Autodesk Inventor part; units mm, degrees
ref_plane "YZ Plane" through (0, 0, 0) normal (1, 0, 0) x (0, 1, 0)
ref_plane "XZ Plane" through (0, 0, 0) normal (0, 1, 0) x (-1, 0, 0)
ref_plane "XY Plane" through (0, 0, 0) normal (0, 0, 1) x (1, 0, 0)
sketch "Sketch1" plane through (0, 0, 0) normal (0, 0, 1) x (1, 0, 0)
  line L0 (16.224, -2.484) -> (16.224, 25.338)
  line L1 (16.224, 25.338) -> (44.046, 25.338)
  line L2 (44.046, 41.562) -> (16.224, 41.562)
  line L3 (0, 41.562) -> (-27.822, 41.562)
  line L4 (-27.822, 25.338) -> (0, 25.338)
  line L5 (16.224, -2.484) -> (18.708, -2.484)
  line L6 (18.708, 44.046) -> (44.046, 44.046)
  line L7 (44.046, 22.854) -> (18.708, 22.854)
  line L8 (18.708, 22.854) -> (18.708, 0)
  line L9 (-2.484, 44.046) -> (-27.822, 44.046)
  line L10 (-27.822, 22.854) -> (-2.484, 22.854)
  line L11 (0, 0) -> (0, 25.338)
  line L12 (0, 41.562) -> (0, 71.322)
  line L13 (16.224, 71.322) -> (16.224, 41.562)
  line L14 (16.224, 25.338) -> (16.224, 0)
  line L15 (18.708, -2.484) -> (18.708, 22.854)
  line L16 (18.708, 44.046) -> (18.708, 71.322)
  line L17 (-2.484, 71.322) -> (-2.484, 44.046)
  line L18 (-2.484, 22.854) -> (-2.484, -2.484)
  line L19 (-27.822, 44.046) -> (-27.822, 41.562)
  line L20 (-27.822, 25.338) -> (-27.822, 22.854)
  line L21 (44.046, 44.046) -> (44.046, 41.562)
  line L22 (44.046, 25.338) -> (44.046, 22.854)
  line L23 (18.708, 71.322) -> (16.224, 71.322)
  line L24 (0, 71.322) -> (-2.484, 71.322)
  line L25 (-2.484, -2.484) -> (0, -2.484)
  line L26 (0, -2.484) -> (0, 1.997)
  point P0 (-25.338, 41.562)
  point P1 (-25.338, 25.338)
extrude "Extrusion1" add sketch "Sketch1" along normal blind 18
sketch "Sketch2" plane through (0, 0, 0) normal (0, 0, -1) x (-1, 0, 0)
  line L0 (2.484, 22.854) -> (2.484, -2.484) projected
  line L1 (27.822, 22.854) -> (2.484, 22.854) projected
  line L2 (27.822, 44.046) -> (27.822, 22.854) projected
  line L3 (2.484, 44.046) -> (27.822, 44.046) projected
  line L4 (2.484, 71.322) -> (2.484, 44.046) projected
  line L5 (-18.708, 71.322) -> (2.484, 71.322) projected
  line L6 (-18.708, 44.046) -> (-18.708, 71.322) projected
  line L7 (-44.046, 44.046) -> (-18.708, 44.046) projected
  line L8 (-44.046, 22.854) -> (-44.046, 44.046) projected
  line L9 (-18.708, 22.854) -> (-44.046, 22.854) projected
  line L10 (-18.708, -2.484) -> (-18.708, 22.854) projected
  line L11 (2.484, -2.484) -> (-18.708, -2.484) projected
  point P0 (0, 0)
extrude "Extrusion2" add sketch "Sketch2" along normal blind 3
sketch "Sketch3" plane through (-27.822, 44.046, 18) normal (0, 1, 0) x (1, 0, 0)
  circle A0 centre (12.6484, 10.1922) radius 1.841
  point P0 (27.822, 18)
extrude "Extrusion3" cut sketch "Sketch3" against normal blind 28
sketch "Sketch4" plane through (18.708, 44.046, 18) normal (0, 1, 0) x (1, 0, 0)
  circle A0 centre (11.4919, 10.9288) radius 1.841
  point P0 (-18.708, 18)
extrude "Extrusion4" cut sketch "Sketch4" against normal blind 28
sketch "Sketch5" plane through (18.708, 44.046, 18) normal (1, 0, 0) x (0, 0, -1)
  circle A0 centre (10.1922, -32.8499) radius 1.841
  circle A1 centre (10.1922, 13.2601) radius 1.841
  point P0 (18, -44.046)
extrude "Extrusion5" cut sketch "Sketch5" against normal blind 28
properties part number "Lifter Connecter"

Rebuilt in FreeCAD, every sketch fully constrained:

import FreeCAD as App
import Part
import Sketcher
from FreeCAD import Vector
Q = App.Units.Quantity

doc = App.newDocument("Part")
body = doc.addObject("PartDesign::Body", "Body")
body.AllowCompound = True

# Sketch on XY plane
sketch1 = body.newObject("Sketcher::SketchObject", "Sketch")
sketch1.AttachmentSupport = (doc.getObject("XY_Plane"), [""])
sketch1.MapMode = "FlatFace"
sketch1.addGeometry(Part.LineSegment(Vector(16.2, 25.3, 0), Vector(16.2, -2.5, 0)), False)
sketch1.addGeometry(Part.LineSegment(Vector(16.2, -2.5, 0), Vector(18.7, -2.5, 0)), False)
sketch1.addGeometry(Part.LineSegment(Vector(18.7, -2.5, 0), Vector(18.7, 22.9, 0)), False)
sketch1.addGeometry(Part.LineSegment(Vector(18.7, 22.9, 0), Vector(44, 22.9, 0)), False)
sketch1.addGeometry(Part.LineSegment(Vector(44, 22.9, 0), Vector(44, 25.3, 0)), False)
sketch1.addGeometry(Part.LineSegment(Vector(44, 25.3, 0), Vector(16.2, 25.3, 0)), False)
sketch1.addGeometry(Part.LineSegment(Vector(16.2, 41.6, 0), Vector(44, 41.6, 0)), False)
sketch1.addGeometry(Part.LineSegment(Vector(44, 41.6, 0), Vector(44, 44, 0)), False)
sketch1.addGeometry(Part.LineSegment(Vector(44, 44, 0), Vector(18.7, 44, 0)), False)
sketch1.addGeometry(Part.LineSegment(Vector(18.7, 44, 0), Vector(18.7, 71.3, 0)), False)
sketch1.addGeometry(Part.LineSegment(Vector(18.7, 71.3, 0), Vector(16.2, 71.3, 0)), False)
sketch1.addGeometry(Part.LineSegment(Vector(16.2, 71.3, 0), Vector(16.2, 41.6, 0)), False)
sketch1.addGeometry(Part.LineSegment(Vector(-27.8, 41.6, 0), Vector(0, 41.6, 0)), False)
sketch1.addGeometry(Part.LineSegment(Vector(0, 41.6, 0), Vector(0, 71.3, 0)), False)
sketch1.addGeometry(Part.LineSegment(Vector(0, 71.3, 0), Vector(-2.5, 71.3, 0)), False)
sketch1.addGeometry(Part.LineSegment(Vector(-2.5, 71.3, 0), Vector(-2.5, 44, 0)), False)
sketch1.addGeometry(Part.LineSegment(Vector(-2.5, 44, 0), Vector(-27.8, 44, 0)), False)
sketch1.addGeometry(Part.LineSegment(Vector(-27.8, 44, 0), Vector(-27.8, 41.6, 0)), False)
sketch1.addGeometry(Part.LineSegment(Vector(0, 25.3, 0), Vector(-27.8, 25.3, 0)), False)
sketch1.addGeometry(Part.LineSegment(Vector(-27.8, 25.3, 0), Vector(-27.8, 22.9, 0)), False)
sketch1.addGeometry(Part.LineSegment(Vector(-27.8, 22.9, 0), Vector(-2.5, 22.9, 0)), False)
sketch1.addGeometry(Part.LineSegment(Vector(-2.5, 22.9, 0), Vector(-2.5, -2.5, 0)), False)
sketch1.addGeometry(Part.LineSegment(Vector(-2.5, -2.5, 0), Vector(0, -2.5, 0)), False)
sketch1.addGeometry(Part.LineSegment(Vector(0, -2.5, 0), Vector(0, 25.3, 0)), False)
sketch1.addConstraint(Sketcher.Constraint("Coincident", 0, 2, 1, 1))
sketch1.addConstraint(Sketcher.Constraint("Coincident", 1, 2, 2, 1))
sketch1.addConstraint(Sketcher.Constraint("Coincident", 2, 2, 3, 1))
sketch1.addConstraint(Sketcher.Constraint("Coincident", 3, 2, 4, 1))
sketch1.addConstraint(Sketcher.Constraint("Coincident", 4, 2, 5, 1))
sketch1.addConstraint(Sketcher.Constraint("Coincident", 5, 2, 0, 1))
sketch1.addConstraint(Sketcher.Constraint("Coincident", 6, 2, 7, 1))
sketch1.addConstraint(Sketcher.Constraint("Coincident", 7, 2, 8, 1))
sketch1.addConstraint(Sketcher.Constraint("Coincident", 8, 2, 9, 1))
sketch1.addConstraint(Sketcher.Constraint("Coincident", 9, 2, 10, 1))
sketch1.addConstraint(Sketcher.Constraint("Coincident", 10, 2, 11, 1))
sketch1.addConstraint(Sketcher.Constraint("Coincident", 11, 2, 6, 1))
sketch1.addConstraint(Sketcher.Constraint("Coincident", 12, 2, 13, 1))
sketch1.addConstraint(Sketcher.Constraint("Coincident", 13, 2, 14, 1))
sketch1.addConstraint(Sketcher.Constraint("Coincident", 14, 2, 15, 1))
sketch1.addConstraint(Sketcher.Constraint("Coincident", 15, 2, 16, 1))
sketch1.addConstraint(Sketcher.Constraint("Coincident", 16, 2, 17, 1))
sketch1.addConstraint(Sketcher.Constraint("Coincident", 17, 2, 12, 1))
sketch1.addConstraint(Sketcher.Constraint("Coincident", 18, 2, 19, 1))
sketch1.addConstraint(Sketcher.Constraint("Coincident", 19, 2, 20, 1))
sketch1.addConstraint(Sketcher.Constraint("Coincident", 20, 2, 21, 1))
sketch1.addConstraint(Sketcher.Constraint("Coincident", 21, 2, 22, 1))
sketch1.addConstraint(Sketcher.Constraint("Coincident", 22, 2, 23, 1))
sketch1.addConstraint(Sketcher.Constraint("Coincident", 23, 2, 18, 1))
sketch1.addConstraint(Sketcher.Constraint("Vertical", 0))
sketch1.addConstraint(Sketcher.Constraint("Horizontal", 1))
sketch1.addConstraint(Sketcher.Constraint("Vertical", 2))
sketch1.addConstraint(Sketcher.Constraint("Horizontal", 3))
sketch1.addConstraint(Sketcher.Constraint("Vertical", 4))
sketch1.addConstraint(Sketcher.Constraint("Horizontal", 5))
sketch1.addConstraint(Sketcher.Constraint("Horizontal", 6))
sketch1.addConstraint(Sketcher.Constraint("Vertical", 7))
sketch1.addConstraint(Sketcher.Constraint("Horizontal", 8))
sketch1.addConstraint(Sketcher.Constraint("Vertical", 9))
sketch1.addConstraint(Sketcher.Constraint("Horizontal", 10))
sketch1.addConstraint(Sketcher.Constraint("Vertical", 11))
sketch1.addConstraint(Sketcher.Constraint("Horizontal", 12))
sketch1.addConstraint(Sketcher.Constraint("Vertical", 13))
sketch1.addConstraint(Sketcher.Constraint("Horizontal", 14))
sketch1.addConstraint(Sketcher.Constraint("Vertical", 15))
sketch1.addConstraint(Sketcher.Constraint("Horizontal", 16))
sketch1.addConstraint(Sketcher.Constraint("Vertical", 17))
sketch1.addConstraint(Sketcher.Constraint("Horizontal", 18))
sketch1.addConstraint(Sketcher.Constraint("Vertical", 19))
sketch1.addConstraint(Sketcher.Constraint("Horizontal", 20))
sketch1.addConstraint(Sketcher.Constraint("Vertical", 21))
sketch1.addConstraint(Sketcher.Constraint("Horizontal", 22))
sketch1.addConstraint(Sketcher.Constraint("Vertical", 23))
sketch1.addConstraint(Sketcher.Constraint("PointOnObject", 12, 2, -2))
sketch1.addConstraint(Sketcher.Constraint("PointOnObject", 22, 2, -2))
sketch1.addConstraint(Sketcher.Constraint("Horizontal", 11, 2, 12, 2))
sketch1.addConstraint(Sketcher.Constraint("Horizontal", 10, 2, 13, 2))
sketch1.addConstraint(Sketcher.Constraint("Horizontal", 8, 2, 15, 2))
sketch1.addConstraint(Sketcher.Constraint("Horizontal", 5, 2, 18, 2))
sketch1.addConstraint(Sketcher.Constraint("Horizontal", 3, 2, 19, 2))
sketch1.addConstraint(Sketcher.Constraint("Horizontal", 1, 2, 21, 2))
sketch1.addConstraint(Sketcher.Constraint("Vertical", 4, 2, 6, 2))
sketch1.addConstraint(Sketcher.Constraint("Vertical", 2, 2, 8, 2))
sketch1.addConstraint(Sketcher.Constraint("Vertical", 5, 2, 10, 2))
sketch1.addConstraint(Sketcher.Constraint("Vertical", 17, 2, 18, 2))
sketch1.addConstraint(Sketcher.Constraint("Vertical", 15, 2, 20, 2))
sketch1.addConstraint(Sketcher.Constraint("Equal", 6, 12))
sketch1.addConstraint(Sketcher.Constraint("Equal", 10, 14))
sketch1.addConstraint(Sketcher.Constraint("Equal", 18, 0))
sketch1.addConstraint(Sketcher.Constraint("Equal", 20, 2))
sketch1.addConstraint(Sketcher.Constraint("Equal", 4, 7))
sketch1.addConstraint(Sketcher.Constraint("DistanceY", 11, 2, 11, 1, Q("29.76 mm")))
sketch1.addConstraint(Sketcher.Constraint("DistanceX", 1, 1, 1, 2, Q("2.484 mm")))
sketch1.addConstraint(Sketcher.Constraint("DistanceX", 3, 1, 3, 2, Q("25.338 mm")))
sketch1.addConstraint(Sketcher.Constraint("DistanceX", -1, 1, 0, 2, Q("16.224 mm")))
sketch1.addConstraint(Sketcher.Constraint("DistanceY", 0, 2, -1, 1, Q("2.484 mm")))
sketch1.addConstraint(Sketcher.Constraint("DistanceY", -1, 1, 6, 2, Q("41.562 mm")))
pad1 = body.newObject("PartDesign::Pad", "Pad")
pad1.Profile = sketch1
pad1.Length = 18

# Sketch on XY plane
sketch2 = body.newObject("Sketcher::SketchObject", "Sketch001")
sketch2.AttachmentSupport = (doc.getObject("XY_Plane"), [""])
sketch2.MapMode = "FlatFace"
sketch2.addGeometry(Part.LineSegment(Vector(-2, -2, 0), Vector(-2, 23, 0)), False)
sketch2.addGeometry(Part.LineSegment(Vector(-2, 23, 0), Vector(-28, 23, 0)), False)
sketch2.addGeometry(Part.LineSegment(Vector(-28, 23, 0), Vector(-28, 44, 0)), False)
sketch2.addGeometry(Part.LineSegment(Vector(-28, 44, 0), Vector(-2, 44, 0)), False)
sketch2.addGeometry(Part.LineSegment(Vector(-2, 44, 0), Vector(-2, 71, 0)), False)
sketch2.addGeometry(Part.LineSegment(Vector(-2, 71, 0), Vector(19, 71, 0)), False)
sketch2.addGeometry(Part.LineSegment(Vector(19, 71, 0), Vector(19, 44, 0)), False)
sketch2.addGeometry(Part.LineSegment(Vector(19, 44, 0), Vector(44, 44, 0)), False)
sketch2.addGeometry(Part.LineSegment(Vector(44, 44, 0), Vector(44, 23, 0)), False)
sketch2.addGeometry(Part.LineSegment(Vector(44, 23, 0), Vector(19, 23, 0)), False)
sketch2.addGeometry(Part.LineSegment(Vector(19, 23, 0), Vector(19, -2, 0)), False)
sketch2.addGeometry(Part.LineSegment(Vector(19, -2, 0), Vector(-2, -2, 0)), False)
sketch2.addConstraint(Sketcher.Constraint("Coincident", 0, 2, 1, 1))
sketch2.addConstraint(Sketcher.Constraint("Coincident", 1, 2, 2, 1))
sketch2.addConstraint(Sketcher.Constraint("Coincident", 2, 2, 3, 1))
sketch2.addConstraint(Sketcher.Constraint("Coincident", 3, 2, 4, 1))
sketch2.addConstraint(Sketcher.Constraint("Coincident", 4, 2, 5, 1))
sketch2.addConstraint(Sketcher.Constraint("Coincident", 5, 2, 6, 1))
sketch2.addConstraint(Sketcher.Constraint("Coincident", 6, 2, 7, 1))
sketch2.addConstraint(Sketcher.Constraint("Coincident", 7, 2, 8, 1))
sketch2.addConstraint(Sketcher.Constraint("Coincident", 8, 2, 9, 1))
sketch2.addConstraint(Sketcher.Constraint("Coincident", 9, 2, 10, 1))
sketch2.addConstraint(Sketcher.Constraint("Coincident", 10, 2, 11, 1))
sketch2.addConstraint(Sketcher.Constraint("Coincident", 11, 2, 0, 1))
sketch2.addConstraint(Sketcher.Constraint("Vertical", 0))
sketch2.addConstraint(Sketcher.Constraint("Horizontal", 1))
sketch2.addConstraint(Sketcher.Constraint("Vertical", 2))
sketch2.addConstraint(Sketcher.Constraint("Horizontal", 3))
sketch2.addConstraint(Sketcher.Constraint("Vertical", 4))
sketch2.addConstraint(Sketcher.Constraint("Horizontal", 5))
sketch2.addConstraint(Sketcher.Constraint("Vertical", 6))
sketch2.addConstraint(Sketcher.Constraint("Horizontal", 7))
sketch2.addConstraint(Sketcher.Constraint("Vertical", 8))
sketch2.addConstraint(Sketcher.Constraint("Horizontal", 9))
sketch2.addConstraint(Sketcher.Constraint("Vertical", 10))
sketch2.addConstraint(Sketcher.Constraint("Horizontal", 11))
sketch2.addConstraint(Sketcher.Constraint("Horizontal", 3, 2, 6, 2))
sketch2.addConstraint(Sketcher.Constraint("Horizontal", 1, 2, 8, 2))
sketch2.addConstraint(Sketcher.Constraint("Vertical", 0, 2, 3, 2))
sketch2.addConstraint(Sketcher.Constraint("Vertical", 6, 2, 9, 2))
sketch2.addConstraint(Sketcher.Constraint("Equal", 3, 7))
sketch2.addConstraint(Sketcher.Constraint("Equal", 9, 0))
sketch2.addConstraint(Sketcher.Constraint("Equal", 11, 2))
sketch2.addConstraint(Sketcher.Constraint("DistanceX", 1, 2, 1, 1, Q("25.338 mm")))
sketch2.addConstraint(Sketcher.Constraint("DistanceX", 5, 1, 5, 2, Q("21.192 mm")))
sketch2.addConstraint(Sketcher.Constraint("DistanceY", 4, 1, 4, 2, Q("27.276 mm")))
sketch2.addConstraint(Sketcher.Constraint("DistanceX", 0, 2, -1, 1, Q("2.484 mm")))
sketch2.addConstraint(Sketcher.Constraint("DistanceY", -1, 1, 0, 2, Q("22.854 mm")))
pad2 = body.newObject("PartDesign::Pad", "Pad001")
pad2.Profile = sketch2
pad2.Length = 3
pad2.Reversed = True

# Sketch on XZ plane
sketch3 = body.newObject("Sketcher::SketchObject", "Sketch002")
sketch3.AttachmentSupport = (doc.getObject("XZ_Plane"), [""])
sketch3.MapMode = "FlatFace"
sketch3.AttachmentOffset = App.Placement(Vector(0, 0, -44.046), App.Rotation())
sketch3.addGeometry(Part.Circle(Vector(-15.2, 7.8, 0), Vector(0, 0, 1), 1.8), False)
sketch3.addConstraint(Sketcher.Constraint("Diameter", 0, Q("3.682 mm")))
sketch3.addConstraint(Sketcher.Constraint("DistanceX", 0, 3, -1, 1, Q("15.1736 mm")))
sketch3.addConstraint(Sketcher.Constraint("DistanceY", -1, 1, 0, 3, Q("7.8078 mm")))
pocket1 = body.newObject("PartDesign::Pocket", "Pocket")
pocket1.Profile = sketch3
pocket1.Length = 28
pocket1.Reversed = True

# Sketch on XZ plane
sketch4 = body.newObject("Sketcher::SketchObject", "Sketch003")
sketch4.AttachmentSupport = (doc.getObject("XZ_Plane"), [""])
sketch4.MapMode = "FlatFace"
sketch4.AttachmentOffset = App.Placement(Vector(0, 0, -44.046), App.Rotation())
sketch4.addGeometry(Part.Circle(Vector(30.2, 7.1, 0), Vector(0, 0, 1), 1.8), False)
sketch4.addConstraint(Sketcher.Constraint("Diameter", 0, Q("3.682 mm")))
sketch4.addConstraint(Sketcher.Constraint("DistanceX", -1, 1, 0, 3, Q("30.2 mm")))
sketch4.addConstraint(Sketcher.Constraint("DistanceY", -1, 1, 0, 3, Q("7.0712 mm")))
pocket2 = body.newObject("PartDesign::Pocket", "Pocket001")
pocket2.Profile = sketch4
pocket2.Length = 28
pocket2.Reversed = True

# Sketch on YZ plane
sketch5 = body.newObject("Sketcher::SketchObject", "Sketch004")
sketch5.AttachmentSupport = (doc.getObject("YZ_Plane"), [""])
sketch5.MapMode = "FlatFace"
sketch5.AttachmentOffset = App.Placement(Vector(0, 0, 18.708), App.Rotation())
sketch5.addGeometry(Part.Circle(Vector(11.2, 7.8, 0), Vector(0, 0, 1), 1.8), False)
sketch5.addGeometry(Part.Circle(Vector(57.3, 7.8, 0), Vector(0, 0, 1), 1.8), False)
sketch5.addConstraint(Sketcher.Constraint("Equal", 0, 1))
sketch5.addConstraint(Sketcher.Constraint("Horizontal", 0, 3, 1, 3))
sketch5.addConstraint(Sketcher.Constraint("Diameter", 0, Q("3.682 mm")))
sketch5.addConstraint(Sketcher.Constraint("DistanceX", 0, 3, 1, 3, Q("46.11 mm")))
sketch5.addConstraint(Sketcher.Constraint("DistanceX", -1, 1, 0, 3, Q("11.196 mm")))
sketch5.addConstraint(Sketcher.Constraint("DistanceY", -1, 1, 0, 3, Q("7.8078 mm")))
pocket3 = body.newObject("PartDesign::Pocket", "Pocket002")
pocket3.Profile = sketch5
pocket3.Length = 28

doc.recompute()
